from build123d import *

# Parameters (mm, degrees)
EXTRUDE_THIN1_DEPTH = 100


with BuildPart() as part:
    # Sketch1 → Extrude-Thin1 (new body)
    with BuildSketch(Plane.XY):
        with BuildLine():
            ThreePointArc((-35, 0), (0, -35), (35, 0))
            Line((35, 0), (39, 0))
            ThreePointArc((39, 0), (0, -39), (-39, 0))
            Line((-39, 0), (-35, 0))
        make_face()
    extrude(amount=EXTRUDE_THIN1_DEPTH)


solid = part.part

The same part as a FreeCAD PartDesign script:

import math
import FreeCAD as App
import Part
import Sketcher

V = App.Vector
Q = App.Units.Quantity

doc = App.newDocument("Part")
body = doc.addObject("PartDesign::Body", "Body")

# Sketch on XY plane
sketch1 = doc.addObject("Sketcher::SketchObject", "Sketch")
body.addObject(sketch1)
sketch1.AttachmentSupport = (doc.XY_Plane, [""])
sketch1.MapMode = "FlatFace"
sketch1.addGeometry(Part.ArcOfCircle(Part.Circle(V(0, 0, 0), V(0, 0, 1), 35), math.radians(180), math.radians(360)), False)
sketch1.addGeometry(Part.LineSegment(V(-35, 0, 0), V(-39, 0, 0)), False)
sketch1.addGeometry(Part.ArcOfCircle(Part.Circle(V(0, 0, 0), V(0, 0, 1), 39), math.radians(180), math.radians(360)), False)
sketch1.addGeometry(Part.LineSegment(V(39, 0, 0), V(35, 0, 0)), False)
sketch1.addConstraint(Sketcher.Constraint("Coincident", 0, 1, 1, 1))
sketch1.addConstraint(Sketcher.Constraint("Coincident", 1, 2, 2, 1))
sketch1.addConstraint(Sketcher.Constraint("Coincident", 2, 2, 3, 1))
sketch1.addConstraint(Sketcher.Constraint("Coincident", 3, 2, 0, 2))
sketch1.addConstraint(Sketcher.Constraint("Horizontal", 1))
sketch1.addConstraint(Sketcher.Constraint("Horizontal", 3))
sketch1.addConstraint(Sketcher.Constraint("Coincident", 0, 3, -1, 1))
sketch1.addConstraint(Sketcher.Constraint("Coincident", 2, 3, -1, 1))
sketch1.addConstraint(Sketcher.Constraint("PointOnObject", 0, 1, -1))
sketch1.addConstraint(Sketcher.Constraint("PointOnObject", 2, 2, -1))
sketch1.addConstraint(Sketcher.Constraint("Radius", 0, Q("35 mm")))
sketch1.addConstraint(Sketcher.Constraint("Radius", 2, Q("39 mm")))
pad1 = doc.addObject("PartDesign::Pad", "Pad")
body.addObject(pad1)
pad1.Profile = sketch1
pad1.Length = 100

doc.recompute()
